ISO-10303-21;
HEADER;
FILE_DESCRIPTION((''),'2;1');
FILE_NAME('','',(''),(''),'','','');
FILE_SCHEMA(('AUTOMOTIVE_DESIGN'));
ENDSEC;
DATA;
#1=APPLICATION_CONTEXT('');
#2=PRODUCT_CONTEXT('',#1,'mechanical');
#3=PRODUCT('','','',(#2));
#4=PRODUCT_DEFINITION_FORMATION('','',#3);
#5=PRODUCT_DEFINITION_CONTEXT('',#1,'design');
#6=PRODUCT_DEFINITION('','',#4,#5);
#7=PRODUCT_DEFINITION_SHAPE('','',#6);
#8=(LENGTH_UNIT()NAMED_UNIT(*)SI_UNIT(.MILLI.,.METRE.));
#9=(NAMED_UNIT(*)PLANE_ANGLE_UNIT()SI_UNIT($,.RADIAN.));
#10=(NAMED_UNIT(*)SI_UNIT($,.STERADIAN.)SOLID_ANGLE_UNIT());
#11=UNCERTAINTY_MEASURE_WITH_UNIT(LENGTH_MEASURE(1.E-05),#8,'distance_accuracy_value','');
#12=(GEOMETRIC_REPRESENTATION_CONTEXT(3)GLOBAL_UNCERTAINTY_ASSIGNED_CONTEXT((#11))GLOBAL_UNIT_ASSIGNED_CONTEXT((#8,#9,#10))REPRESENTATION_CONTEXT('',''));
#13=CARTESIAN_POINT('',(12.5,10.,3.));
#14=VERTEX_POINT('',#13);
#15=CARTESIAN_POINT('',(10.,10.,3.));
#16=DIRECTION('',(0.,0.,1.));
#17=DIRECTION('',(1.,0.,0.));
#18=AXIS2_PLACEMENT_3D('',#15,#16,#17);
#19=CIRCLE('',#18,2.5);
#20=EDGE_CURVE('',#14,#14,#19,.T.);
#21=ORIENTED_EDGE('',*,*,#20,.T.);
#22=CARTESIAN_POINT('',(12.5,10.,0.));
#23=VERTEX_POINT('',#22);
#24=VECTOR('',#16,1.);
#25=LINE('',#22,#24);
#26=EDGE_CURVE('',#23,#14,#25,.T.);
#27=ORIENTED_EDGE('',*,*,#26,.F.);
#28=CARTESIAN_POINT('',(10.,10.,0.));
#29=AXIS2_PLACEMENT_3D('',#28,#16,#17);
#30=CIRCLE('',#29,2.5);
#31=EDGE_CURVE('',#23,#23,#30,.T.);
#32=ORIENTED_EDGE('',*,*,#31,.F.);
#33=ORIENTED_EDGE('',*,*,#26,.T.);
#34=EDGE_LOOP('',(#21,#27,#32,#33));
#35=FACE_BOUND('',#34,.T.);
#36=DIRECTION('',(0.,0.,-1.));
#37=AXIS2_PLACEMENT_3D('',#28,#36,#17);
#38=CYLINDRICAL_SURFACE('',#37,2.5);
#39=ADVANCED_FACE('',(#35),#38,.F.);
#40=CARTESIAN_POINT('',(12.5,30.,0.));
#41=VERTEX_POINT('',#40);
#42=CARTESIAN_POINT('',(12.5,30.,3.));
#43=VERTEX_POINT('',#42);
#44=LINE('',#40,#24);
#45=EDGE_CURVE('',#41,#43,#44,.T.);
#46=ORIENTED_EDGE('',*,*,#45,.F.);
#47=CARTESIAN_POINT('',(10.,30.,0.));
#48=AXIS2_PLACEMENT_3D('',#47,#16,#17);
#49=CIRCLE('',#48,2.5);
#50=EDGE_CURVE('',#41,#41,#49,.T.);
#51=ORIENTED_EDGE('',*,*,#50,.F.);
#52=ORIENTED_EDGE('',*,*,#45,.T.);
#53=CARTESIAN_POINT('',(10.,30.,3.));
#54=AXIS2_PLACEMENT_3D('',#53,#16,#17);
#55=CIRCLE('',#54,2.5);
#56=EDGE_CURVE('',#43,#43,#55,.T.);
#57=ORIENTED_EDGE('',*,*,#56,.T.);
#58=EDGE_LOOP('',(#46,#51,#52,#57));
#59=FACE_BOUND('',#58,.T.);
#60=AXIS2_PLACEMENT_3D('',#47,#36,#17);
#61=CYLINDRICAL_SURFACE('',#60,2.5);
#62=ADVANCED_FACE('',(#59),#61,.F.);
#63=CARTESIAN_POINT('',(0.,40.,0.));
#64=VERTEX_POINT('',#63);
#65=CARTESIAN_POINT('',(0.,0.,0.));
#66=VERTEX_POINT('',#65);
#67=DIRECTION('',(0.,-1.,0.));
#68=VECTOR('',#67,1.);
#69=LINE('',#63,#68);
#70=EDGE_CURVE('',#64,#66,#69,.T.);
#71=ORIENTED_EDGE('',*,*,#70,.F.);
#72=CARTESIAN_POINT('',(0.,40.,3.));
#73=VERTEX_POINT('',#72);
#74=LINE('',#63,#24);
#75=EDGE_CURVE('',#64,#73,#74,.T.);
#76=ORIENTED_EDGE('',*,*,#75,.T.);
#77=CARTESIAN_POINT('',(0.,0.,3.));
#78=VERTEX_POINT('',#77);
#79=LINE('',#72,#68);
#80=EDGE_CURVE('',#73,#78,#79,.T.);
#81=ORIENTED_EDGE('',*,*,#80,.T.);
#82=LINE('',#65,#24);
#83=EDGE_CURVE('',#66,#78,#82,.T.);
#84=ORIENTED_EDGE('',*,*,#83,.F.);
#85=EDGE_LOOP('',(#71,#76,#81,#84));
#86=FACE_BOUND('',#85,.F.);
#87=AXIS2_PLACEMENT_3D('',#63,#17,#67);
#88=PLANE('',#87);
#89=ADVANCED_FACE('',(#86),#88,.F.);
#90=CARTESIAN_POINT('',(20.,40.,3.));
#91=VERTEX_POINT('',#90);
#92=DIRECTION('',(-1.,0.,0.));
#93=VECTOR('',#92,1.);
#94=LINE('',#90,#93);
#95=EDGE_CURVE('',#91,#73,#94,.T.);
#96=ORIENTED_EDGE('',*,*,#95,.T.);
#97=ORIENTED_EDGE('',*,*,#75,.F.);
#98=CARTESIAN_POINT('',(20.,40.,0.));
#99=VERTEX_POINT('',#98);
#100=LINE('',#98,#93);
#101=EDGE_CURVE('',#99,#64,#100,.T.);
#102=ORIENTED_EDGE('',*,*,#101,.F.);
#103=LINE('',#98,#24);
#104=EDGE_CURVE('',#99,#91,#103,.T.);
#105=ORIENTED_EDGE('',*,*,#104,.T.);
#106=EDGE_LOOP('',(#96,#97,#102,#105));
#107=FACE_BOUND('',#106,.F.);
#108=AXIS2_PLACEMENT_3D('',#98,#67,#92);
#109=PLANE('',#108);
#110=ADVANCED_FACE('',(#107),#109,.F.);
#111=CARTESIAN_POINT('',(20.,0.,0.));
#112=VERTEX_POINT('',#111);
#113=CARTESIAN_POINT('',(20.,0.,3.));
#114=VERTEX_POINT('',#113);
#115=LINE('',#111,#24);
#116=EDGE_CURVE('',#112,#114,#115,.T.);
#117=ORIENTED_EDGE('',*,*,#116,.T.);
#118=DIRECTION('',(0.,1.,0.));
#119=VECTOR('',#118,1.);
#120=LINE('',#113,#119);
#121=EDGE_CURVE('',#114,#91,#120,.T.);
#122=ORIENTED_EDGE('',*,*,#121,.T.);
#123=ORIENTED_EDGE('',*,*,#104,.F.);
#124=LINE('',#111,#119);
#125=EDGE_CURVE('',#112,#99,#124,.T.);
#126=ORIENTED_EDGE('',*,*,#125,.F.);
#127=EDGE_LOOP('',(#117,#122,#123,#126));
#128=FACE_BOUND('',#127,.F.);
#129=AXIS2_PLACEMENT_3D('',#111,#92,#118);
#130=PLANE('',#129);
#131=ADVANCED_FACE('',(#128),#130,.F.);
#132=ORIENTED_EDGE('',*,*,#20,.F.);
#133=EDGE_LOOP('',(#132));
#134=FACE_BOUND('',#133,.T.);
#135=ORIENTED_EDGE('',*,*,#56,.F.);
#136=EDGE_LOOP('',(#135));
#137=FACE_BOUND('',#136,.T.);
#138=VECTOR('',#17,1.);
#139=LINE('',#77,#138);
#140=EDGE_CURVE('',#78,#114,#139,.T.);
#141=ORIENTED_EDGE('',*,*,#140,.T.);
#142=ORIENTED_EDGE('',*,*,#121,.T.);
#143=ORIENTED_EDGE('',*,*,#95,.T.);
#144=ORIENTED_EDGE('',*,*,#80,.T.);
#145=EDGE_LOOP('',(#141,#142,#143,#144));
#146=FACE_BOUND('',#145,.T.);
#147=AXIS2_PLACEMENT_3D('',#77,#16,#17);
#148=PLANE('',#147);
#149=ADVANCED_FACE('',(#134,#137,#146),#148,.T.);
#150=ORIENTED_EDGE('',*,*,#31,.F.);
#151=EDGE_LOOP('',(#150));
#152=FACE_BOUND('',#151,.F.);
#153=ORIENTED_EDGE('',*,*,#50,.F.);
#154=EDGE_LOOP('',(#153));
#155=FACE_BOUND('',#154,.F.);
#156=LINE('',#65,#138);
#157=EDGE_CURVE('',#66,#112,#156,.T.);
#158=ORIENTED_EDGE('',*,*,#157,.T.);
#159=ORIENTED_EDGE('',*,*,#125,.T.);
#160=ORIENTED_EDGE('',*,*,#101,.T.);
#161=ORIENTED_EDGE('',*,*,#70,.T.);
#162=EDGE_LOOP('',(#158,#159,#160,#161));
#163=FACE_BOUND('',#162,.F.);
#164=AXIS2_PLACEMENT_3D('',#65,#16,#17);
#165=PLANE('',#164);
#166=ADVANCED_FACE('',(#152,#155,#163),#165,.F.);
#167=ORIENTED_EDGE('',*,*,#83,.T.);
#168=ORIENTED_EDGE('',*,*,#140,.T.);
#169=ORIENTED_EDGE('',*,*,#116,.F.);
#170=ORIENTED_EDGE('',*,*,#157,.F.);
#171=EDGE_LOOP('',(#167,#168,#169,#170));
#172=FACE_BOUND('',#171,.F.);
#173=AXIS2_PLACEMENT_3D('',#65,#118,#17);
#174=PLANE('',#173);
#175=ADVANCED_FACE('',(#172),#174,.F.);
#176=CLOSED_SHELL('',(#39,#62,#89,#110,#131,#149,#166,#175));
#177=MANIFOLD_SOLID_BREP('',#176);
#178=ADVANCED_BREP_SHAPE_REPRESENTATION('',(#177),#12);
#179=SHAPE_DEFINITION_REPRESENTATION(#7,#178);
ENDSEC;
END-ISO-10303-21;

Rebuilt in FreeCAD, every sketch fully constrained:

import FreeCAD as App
import Part
import Sketcher

V = App.Vector

doc = App.newDocument("Part")
body = doc.addObject("PartDesign::Body", "Body")

# Sketch on XY plane
sketch1 = doc.addObject("Sketcher::SketchObject", "Sketch")
body.addObject(sketch1)
sketch1.AttachmentSupport = (doc.XY_Plane, [""])
sketch1.MapMode = "FlatFace"
sketch1.addGeometry([
    Part.LineSegment(V(0, 40, 0), V(0, 0, 0)),  # 0
    Part.LineSegment(V(0, 0, 0), V(20, 0, 0)),  # 1
    Part.LineSegment(V(20, 0, 0), V(20, 40, 0)),  # 2
    Part.LineSegment(V(20, 40, 0), V(0, 40, 0)),  # 3
    Part.Circle(V(10, 10, 0), V(0, 0, 1), 2.5),  # 4
    Part.Circle(V(10, 30, 0), V(0, 0, 1), 2.5),  # 5
], False)
sketch1.addConstraint([
    Sketcher.Constraint("Coincident", 0, 2, 1, 1),
    Sketcher.Constraint("Coincident", 1, 2, 2, 1),
    Sketcher.Constraint("Coincident", 2, 2, 3, 1),
    Sketcher.Constraint("Coincident", 3, 2, 0, 1),
    Sketcher.Constraint("Vertical", 0),
    Sketcher.Constraint("Horizontal", 1),
    Sketcher.Constraint("Vertical", 2),
    Sketcher.Constraint("Horizontal", 3),
    Sketcher.Constraint("Coincident", 0, 2, -1, 1),
    Sketcher.Constraint("Equal", 4, 5),
    Sketcher.Constraint("Vertical", 4, 3, 5, 3),
    Sketcher.Constraint("Diameter", 4, 5.0),
    Sketcher.Constraint("DistanceX", 1, 1, 1, 2, 20.0),
    Sketcher.Constraint("DistanceY", 0, 2, 0, 1, 40.0),
    Sketcher.Constraint("DistanceX", -1, 1, 4, 3, 10.0),
    Sketcher.Constraint("DistanceY", -1, 1, 4, 3, 10.0),
    Sketcher.Constraint("DistanceY", 4, 3, 5, 3, 20.0),
])
pad1 = doc.addObject("PartDesign::Pad", "Pad")
body.addObject(pad1)
pad1.Profile = sketch1
pad1.Length = 3

doc.recompute()
